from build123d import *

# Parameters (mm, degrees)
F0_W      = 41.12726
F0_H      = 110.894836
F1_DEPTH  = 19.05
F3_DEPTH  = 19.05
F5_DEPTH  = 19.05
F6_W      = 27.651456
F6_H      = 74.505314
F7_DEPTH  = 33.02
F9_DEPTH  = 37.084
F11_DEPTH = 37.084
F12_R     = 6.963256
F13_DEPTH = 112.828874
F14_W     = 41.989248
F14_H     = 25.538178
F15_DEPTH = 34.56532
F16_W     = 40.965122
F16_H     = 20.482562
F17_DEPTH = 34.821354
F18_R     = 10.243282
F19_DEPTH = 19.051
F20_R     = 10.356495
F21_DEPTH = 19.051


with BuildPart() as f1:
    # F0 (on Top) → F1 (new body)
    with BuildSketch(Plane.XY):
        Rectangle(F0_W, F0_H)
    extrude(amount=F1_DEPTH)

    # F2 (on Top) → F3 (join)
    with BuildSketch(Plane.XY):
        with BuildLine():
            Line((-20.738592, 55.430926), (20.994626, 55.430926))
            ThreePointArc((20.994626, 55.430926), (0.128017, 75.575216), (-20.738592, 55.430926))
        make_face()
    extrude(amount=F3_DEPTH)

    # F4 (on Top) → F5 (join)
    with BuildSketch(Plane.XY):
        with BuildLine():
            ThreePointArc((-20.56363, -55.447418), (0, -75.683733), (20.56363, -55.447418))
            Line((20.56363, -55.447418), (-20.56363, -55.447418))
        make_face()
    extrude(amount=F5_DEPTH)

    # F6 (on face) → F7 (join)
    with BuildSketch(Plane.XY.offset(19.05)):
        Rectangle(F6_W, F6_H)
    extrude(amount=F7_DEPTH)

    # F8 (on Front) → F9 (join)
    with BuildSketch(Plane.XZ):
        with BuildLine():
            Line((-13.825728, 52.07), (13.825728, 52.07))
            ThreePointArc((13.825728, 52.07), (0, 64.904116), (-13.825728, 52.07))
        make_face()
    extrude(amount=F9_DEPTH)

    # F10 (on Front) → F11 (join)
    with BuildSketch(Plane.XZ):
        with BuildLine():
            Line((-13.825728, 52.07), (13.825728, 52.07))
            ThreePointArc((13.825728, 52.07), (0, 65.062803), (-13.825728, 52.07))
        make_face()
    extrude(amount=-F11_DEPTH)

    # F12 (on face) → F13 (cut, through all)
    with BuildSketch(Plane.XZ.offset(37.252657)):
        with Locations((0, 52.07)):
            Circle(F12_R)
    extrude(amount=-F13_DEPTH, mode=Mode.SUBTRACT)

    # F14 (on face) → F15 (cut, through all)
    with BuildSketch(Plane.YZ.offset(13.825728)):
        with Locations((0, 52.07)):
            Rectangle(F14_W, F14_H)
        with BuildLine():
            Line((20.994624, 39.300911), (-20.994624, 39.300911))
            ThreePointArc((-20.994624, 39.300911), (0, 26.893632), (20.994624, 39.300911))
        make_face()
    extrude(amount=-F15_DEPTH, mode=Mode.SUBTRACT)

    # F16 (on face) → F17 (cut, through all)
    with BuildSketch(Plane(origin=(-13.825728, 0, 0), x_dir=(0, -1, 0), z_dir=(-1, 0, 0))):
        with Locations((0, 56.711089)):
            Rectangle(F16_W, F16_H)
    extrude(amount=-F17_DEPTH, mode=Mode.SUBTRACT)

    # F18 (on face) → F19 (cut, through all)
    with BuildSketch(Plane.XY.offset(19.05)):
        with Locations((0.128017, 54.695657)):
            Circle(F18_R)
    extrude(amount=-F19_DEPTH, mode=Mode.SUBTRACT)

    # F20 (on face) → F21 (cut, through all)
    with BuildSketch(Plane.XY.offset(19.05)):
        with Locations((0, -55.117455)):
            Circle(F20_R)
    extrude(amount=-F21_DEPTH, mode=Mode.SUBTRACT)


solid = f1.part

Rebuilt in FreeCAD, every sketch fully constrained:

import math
import FreeCAD as App
import Part
import Sketcher
Q = App.Units.Quantity


def add_polygon(sketch, points):
    """Adds a closed chain of lines whose ends are joined by coincident constraints."""
    first, n = sketch.GeometryCount, len(points)
    for a, b in zip(points, points[1:] + points[:1]):
        sketch.addGeometry(Part.LineSegment(App.Vector(*a, 0), App.Vector(*b, 0)), False)
    for i in range(n):
        sketch.addConstraint(Sketcher.Constraint("Coincident", first + i, 2, first + (i + 1) % n, 1))

doc = App.newDocument("Part")
body = doc.addObject("PartDesign::Body", "Body")

sketch1 = body.newObject("Sketcher::SketchObject", "Sketch")
sketch1.AttachmentSupport = (doc.getObject("XY_Plane"), [""])
sketch1.MapMode = "FlatFace"
add_polygon(sketch1, [(-20.56363, 55.447418), (-20.56363, -55.447418), (20.56363, -55.447418), (20.56363, 55.447418)])
sketch1.addConstraint(Sketcher.Constraint("Vertical", 0))
sketch1.addConstraint(Sketcher.Constraint("Horizontal", 1))
sketch1.addConstraint(Sketcher.Constraint("Vertical", 2))
sketch1.addConstraint(Sketcher.Constraint("Horizontal", 3))
sketch1.addConstraint(Sketcher.Constraint("Symmetric", 0, 2, 2, 2, -1, 1))
sketch1.addConstraint(Sketcher.Constraint("DistanceX", 1, 1, 1, 2, 41.12726))
sketch1.addConstraint(Sketcher.Constraint("DistanceY", 0, 2, 0, 1, 110.894836))
pad1 = body.newObject("PartDesign::Pad", "Pad")
pad1.Profile = sketch1
pad1.Length = Q("0.75 in")

sketch2 = body.newObject("Sketcher::SketchObject", "Sketch001")
sketch2.AttachmentSupport = (doc.getObject("XY_Plane"), [""])
sketch2.MapMode = "FlatFace"
sketch2.addGeometry(Part.LineSegment(App.Vector(-20.738592, 55.430926, 0), App.Vector(20.994626, 55.430926, 0)), False)
sketch2.addGeometry(Part.ArcOfCircle(Part.Circle(App.Vector(0.128017, 54.695657, 0), App.Vector(0, 0, 1), 20.879559), math.radians(2.018076), math.radians(177.981924)), False)
sketch2.addConstraint(Sketcher.Constraint("Coincident", 0, 1, 1, 2))
sketch2.addConstraint(Sketcher.Constraint("Coincident", 1, 1, 0, 2))
sketch2.addConstraint(Sketcher.Constraint("Horizontal", 0))
sketch2.addConstraint(Sketcher.Constraint("Radius", 1, 20.879559))
sketch2.addConstraint(Sketcher.Constraint("DistanceX", 0, 1, 0, 2, 41.733218))
sketch2.addConstraint(Sketcher.Constraint("DistanceX", -1, 1, 1, 3, 0.128017))
sketch2.addConstraint(Sketcher.Constraint("DistanceY", -1, 1, 1, 3, 54.695657))
pad2 = body.newObject("PartDesign::Pad", "Pad001")
pad2.Profile = sketch2
pad2.Length = Q("0.75 in")

sketch3 = body.newObject("Sketcher::SketchObject", "Sketch002")
sketch3.AttachmentSupport = (doc.getObject("XY_Plane"), [""])
sketch3.MapMode = "FlatFace"
sketch3.addGeometry(Part.ArcOfCircle(Part.Circle(App.Vector(0, -55.117456, 0), App.Vector(0, 0, 1), 20.566277), math.radians(-179.080716), math.radians(-0.919284)), False)
sketch3.addGeometry(Part.LineSegment(App.Vector(20.56363, -55.447418, 0), App.Vector(-20.56363, -55.447418, 0)), False)
sketch3.addConstraint(Sketcher.Constraint("Coincident", 0, 1, 1, 2))
sketch3.addConstraint(Sketcher.Constraint("Coincident", 1, 1, 0, 2))
sketch3.addConstraint(Sketcher.Constraint("Horizontal", 1))
sketch3.addConstraint(Sketcher.Constraint("PointOnObject", 0, 3, -2))
sketch3.addConstraint(Sketcher.Constraint("Radius", 0, 20.566277))
sketch3.addConstraint(Sketcher.Constraint("DistanceX", 1, 2, 1, 1, 41.12726))
sketch3.addConstraint(Sketcher.Constraint("DistanceY", 0, 3, -1, 1, 55.117456))
pad3 = body.newObject("PartDesign::Pad", "Pad002")
pad3.Profile = sketch3
pad3.Length = Q("0.75 in")

sketch4 = body.newObject("Sketcher::SketchObject", "Sketch003")
sketch4.AttachmentSupport = (doc.getObject("XY_Plane"), [""])
sketch4.MapMode = "FlatFace"
sketch4.AttachmentOffset = App.Placement(App.Vector(0, 0, 0.75 * 25.4), App.Rotation())
add_polygon(sketch4, [(-13.825728, 37.252657), (-13.825728, -37.252657), (13.825728, -37.252657), (13.825728, 37.252657)])
sketch4.addConstraint(Sketcher.Constraint("Vertical", 0))
sketch4.addConstraint(Sketcher.Constraint("Horizontal", 1))
sketch4.addConstraint(Sketcher.Constraint("Vertical", 2))
sketch4.addConstraint(Sketcher.Constraint("Horizontal", 3))
sketch4.addConstraint(Sketcher.Constraint("Symmetric", 0, 2, 2, 2, -1, 1))
sketch4.addConstraint(Sketcher.Constraint("DistanceX", 1, 1, 1, 2, 27.651456))
sketch4.addConstraint(Sketcher.Constraint("DistanceY", 0, 2, 0, 1, 74.505314))
pad4 = body.newObject("PartDesign::Pad", "Pad003")
pad4.Profile = sketch4
pad4.Length = Q("1.3 in")

sketch5 = body.newObject("Sketcher::SketchObject", "Sketch004")
sketch5.AttachmentSupport = (doc.getObject("XZ_Plane"), [""])
sketch5.MapMode = "FlatFace"
sketch5.addGeometry(Part.LineSegment(App.Vector(-13.825728, 52.07, 0), App.Vector(13.825728, 52.07, 0)), False)
sketch5.addGeometry(Part.ArcOfCircle(Part.Circle(App.Vector(0, 51.04008, 0), App.Vector(0, 0, 1), 13.864036), math.radians(4.260265), math.radians(175.739735)), False)
sketch5.addConstraint(Sketcher.Constraint("Coincident", 0, 1, 1, 2))
sketch5.addConstraint(Sketcher.Constraint("Coincident", 1, 1, 0, 2))
sketch5.addConstraint(Sketcher.Constraint("Horizontal", 0))
sketch5.addConstraint(Sketcher.Constraint("PointOnObject", 1, 3, -2))
sketch5.addConstraint(Sketcher.Constraint("DistanceY", -1, 1, 0, 1, Q("2.05 in")))
sketch5.addConstraint(Sketcher.Constraint("Radius", 1, 13.864036))
sketch5.addConstraint(Sketcher.Constraint("DistanceX", 0, 1, 0, 2, 27.651456))
pad5 = body.newObject("PartDesign::Pad", "Pad004")
pad5.Profile = sketch5
pad5.Length = Q("1.46 in")

sketch6 = body.newObject("Sketcher::SketchObject", "Sketch005")
sketch6.AttachmentSupport = (doc.getObject("XZ_Plane"), [""])
sketch6.MapMode = "FlatFace"
sketch6.addGeometry(Part.LineSegment(App.Vector(-13.825728, 52.07, 0), App.Vector(13.825728, 52.07, 0)), False)
sketch6.addGeometry(Part.ArcOfCircle(Part.Circle(App.Vector(0, 51.210377, 0), App.Vector(0, 0, 1), 13.852426), math.radians(3.55782), math.radians(176.44218)), False)
sketch6.addConstraint(Sketcher.Constraint("Coincident", 0, 1, 1, 2))
sketch6.addConstraint(Sketcher.Constraint("Coincident", 1, 1, 0, 2))
sketch6.addConstraint(Sketcher.Constraint("Horizontal", 0))
sketch6.addConstraint(Sketcher.Constraint("PointOnObject", 1, 3, -2))
sketch6.addConstraint(Sketcher.Constraint("DistanceY", -1, 1, 0, 1, Q("2.05 in")))
sketch6.addConstraint(Sketcher.Constraint("Radius", 1, 13.852426))
sketch6.addConstraint(Sketcher.Constraint("DistanceX", 0, 1, 0, 2, 27.651456))
pad6 = body.newObject("PartDesign::Pad", "Pad005")
pad6.Profile = sketch6
pad6.Length = Q("1.46 in")
pad6.Reversed = True

sketch7 = body.newObject("Sketcher::SketchObject", "Sketch006")
sketch7.AttachmentSupport = (doc.getObject("XZ_Plane"), [""])
sketch7.MapMode = "FlatFace"
sketch7.AttachmentOffset = App.Placement(App.Vector(0, 0, 37.252657), App.Rotation())
sketch7.addGeometry(Part.Circle(App.Vector(0, 52.07, 0), App.Vector(0, 0, 1), 6.963256), False)
sketch7.addConstraint(Sketcher.Constraint("PointOnObject", 0, 3, -2))
sketch7.addConstraint(Sketcher.Constraint("DistanceY", -1, 1, 0, 3, Q("2.05 in")))
sketch7.addConstraint(Sketcher.Constraint("Diameter", 0, 13.926512))
pocket1 = body.newObject("PartDesign::Pocket", "Pocket")
pocket1.Profile = sketch7
pocket1.Type = "ThroughAll"

sketch8 = body.newObject("Sketcher::SketchObject", "Sketch007")
sketch8.AttachmentSupport = (doc.getObject("YZ_Plane"), [""])
sketch8.MapMode = "FlatFace"
sketch8.AttachmentOffset = App.Placement(App.Vector(0, 0, 13.825728), App.Rotation())
sketch8.addGeometry(Part.LineSegment(App.Vector(-20.994624, 64.839089, 0), App.Vector(-20.994624, 39.300911, 0)), False)
sketch8.addGeometry(Part.ArcOfCircle(Part.Circle(App.Vector(0, 50.859999, 0), App.Vector(0, 0, 1), 23.966367), math.radians(-151.163975), math.radians(-28.836025)), False)
sketch8.addGeometry(Part.LineSegment(App.Vector(20.994624, 39.300911, 0), App.Vector(20.994624, 64.839089, 0)), False)
sketch8.addGeometry(Part.LineSegment(App.Vector(20.994624, 64.839089, 0), App.Vector(-20.994624, 64.839089, 0)), False)
sketch8.addConstraint(Sketcher.Constraint("Coincident", 0, 2, 1, 1))
sketch8.addConstraint(Sketcher.Constraint("Coincident", 1, 2, 2, 1))
sketch8.addConstraint(Sketcher.Constraint("Coincident", 2, 2, 3, 1))
sketch8.addConstraint(Sketcher.Constraint("Coincident", 3, 2, 0, 1))
sketch8.addConstraint(Sketcher.Constraint("Vertical", 0))
sketch8.addConstraint(Sketcher.Constraint("Vertical", 2))
sketch8.addConstraint(Sketcher.Constraint("Horizontal", 3))
sketch8.addConstraint(Sketcher.Constraint("Symmetric", 0, 2, 1, 2, -2))
sketch8.addConstraint(Sketcher.Constraint("Radius", 1, 23.966367))
sketch8.addConstraint(Sketcher.Constraint("DistanceX", 3, 2, 3, 1, 41.989248))
sketch8.addConstraint(Sketcher.Constraint("DistanceY", 0, 2, 0, 1, 25.538178))
sketch8.addConstraint(Sketcher.Constraint("DistanceY", -1, 1, 1, 3, 50.859999))
pocket2 = body.newObject("PartDesign::Pocket", "Pocket001")
pocket2.Profile = sketch8
pocket2.Type = "ThroughAll"

sketch9 = body.newObject("Sketcher::SketchObject", "Sketch008")
sketch9.AttachmentSupport = (doc.getObject("YZ_Plane"), [""])
sketch9.MapMode = "FlatFace"
sketch9.AttachmentOffset = App.Placement(App.Vector(0, 0, -13.825728), App.Rotation())
add_polygon(sketch9, [(20.482561, 66.95237), (20.482561, 46.469808), (-20.482561, 46.469808), (-20.482561, 66.95237)])
sketch9.addConstraint(Sketcher.Constraint("Vertical", 0))
sketch9.addConstraint(Sketcher.Constraint("Horizontal", 1))
sketch9.addConstraint(Sketcher.Constraint("Vertical", 2))
sketch9.addConstraint(Sketcher.Constraint("Horizontal", 3))
sketch9.addConstraint(Sketcher.Constraint("DistanceX", 1, 2, 1, 1, Q("1.6128001 in")))
sketch9.addConstraint(Sketcher.Constraint("DistanceY", 0, 2, 0, 1, Q("0.8064001 in")))
sketch9.addConstraint(Sketcher.Constraint("DistanceX", -1, 1, 0, 2, Q("0.8064 in")))
sketch9.addConstraint(Sketcher.Constraint("DistanceY", -1, 1, 2, 2, 66.95237))
pocket3 = body.newObject("PartDesign::Pocket", "Pocket002")
pocket3.Profile = sketch9
pocket3.Type = "ThroughAll"
pocket3.Reversed = True

sketch10 = body.newObject("Sketcher::SketchObject", "Sketch009")
sketch10.AttachmentSupport = (doc.getObject("XY_Plane"), [""])
sketch10.MapMode = "FlatFace"
sketch10.AttachmentOffset = App.Placement(App.Vector(0, 0, 0.75 * 25.4), App.Rotation())
sketch10.addGeometry(Part.Circle(App.Vector(0.128017, 54.695657, 0), App.Vector(0, 0, 1), 10.243282), False)
sketch10.addConstraint(Sketcher.Constraint("Diameter", 0, 20.486564))
sketch10.addConstraint(Sketcher.Constraint("DistanceX", -1, 1, 0, 3, 0.128017))
sketch10.addConstraint(Sketcher.Constraint("DistanceY", -1, 1, 0, 3, 54.695657))
pocket4 = body.newObject("PartDesign::Pocket", "Pocket003")
pocket4.Profile = sketch10
pocket4.Type = "ThroughAll"

sketch11 = body.newObject("Sketcher::SketchObject", "Sketch010")
sketch11.AttachmentSupport = (doc.getObject("XY_Plane"), [""])
sketch11.MapMode = "FlatFace"
sketch11.AttachmentOffset = App.Placement(App.Vector(0, 0, 0.75 * 25.4), App.Rotation())
sketch11.addGeometry(Part.Circle(App.Vector(0, -55.117455, 0), App.Vector(0, 0, 1), 10.356495), False)
sketch11.addConstraint(Sketcher.Constraint("PointOnObject", 0, 3, -2))
sketch11.addConstraint(Sketcher.Constraint("Diameter", 0, 20.71299))
sketch11.addConstraint(Sketcher.Constraint("DistanceY", 0, 3, -1, 1, 55.117455))
pocket5 = body.newObject("PartDesign::Pocket", "Pocket004")
pocket5.Profile = sketch11
pocket5.Type = "ThroughAll"

doc.recompute()
